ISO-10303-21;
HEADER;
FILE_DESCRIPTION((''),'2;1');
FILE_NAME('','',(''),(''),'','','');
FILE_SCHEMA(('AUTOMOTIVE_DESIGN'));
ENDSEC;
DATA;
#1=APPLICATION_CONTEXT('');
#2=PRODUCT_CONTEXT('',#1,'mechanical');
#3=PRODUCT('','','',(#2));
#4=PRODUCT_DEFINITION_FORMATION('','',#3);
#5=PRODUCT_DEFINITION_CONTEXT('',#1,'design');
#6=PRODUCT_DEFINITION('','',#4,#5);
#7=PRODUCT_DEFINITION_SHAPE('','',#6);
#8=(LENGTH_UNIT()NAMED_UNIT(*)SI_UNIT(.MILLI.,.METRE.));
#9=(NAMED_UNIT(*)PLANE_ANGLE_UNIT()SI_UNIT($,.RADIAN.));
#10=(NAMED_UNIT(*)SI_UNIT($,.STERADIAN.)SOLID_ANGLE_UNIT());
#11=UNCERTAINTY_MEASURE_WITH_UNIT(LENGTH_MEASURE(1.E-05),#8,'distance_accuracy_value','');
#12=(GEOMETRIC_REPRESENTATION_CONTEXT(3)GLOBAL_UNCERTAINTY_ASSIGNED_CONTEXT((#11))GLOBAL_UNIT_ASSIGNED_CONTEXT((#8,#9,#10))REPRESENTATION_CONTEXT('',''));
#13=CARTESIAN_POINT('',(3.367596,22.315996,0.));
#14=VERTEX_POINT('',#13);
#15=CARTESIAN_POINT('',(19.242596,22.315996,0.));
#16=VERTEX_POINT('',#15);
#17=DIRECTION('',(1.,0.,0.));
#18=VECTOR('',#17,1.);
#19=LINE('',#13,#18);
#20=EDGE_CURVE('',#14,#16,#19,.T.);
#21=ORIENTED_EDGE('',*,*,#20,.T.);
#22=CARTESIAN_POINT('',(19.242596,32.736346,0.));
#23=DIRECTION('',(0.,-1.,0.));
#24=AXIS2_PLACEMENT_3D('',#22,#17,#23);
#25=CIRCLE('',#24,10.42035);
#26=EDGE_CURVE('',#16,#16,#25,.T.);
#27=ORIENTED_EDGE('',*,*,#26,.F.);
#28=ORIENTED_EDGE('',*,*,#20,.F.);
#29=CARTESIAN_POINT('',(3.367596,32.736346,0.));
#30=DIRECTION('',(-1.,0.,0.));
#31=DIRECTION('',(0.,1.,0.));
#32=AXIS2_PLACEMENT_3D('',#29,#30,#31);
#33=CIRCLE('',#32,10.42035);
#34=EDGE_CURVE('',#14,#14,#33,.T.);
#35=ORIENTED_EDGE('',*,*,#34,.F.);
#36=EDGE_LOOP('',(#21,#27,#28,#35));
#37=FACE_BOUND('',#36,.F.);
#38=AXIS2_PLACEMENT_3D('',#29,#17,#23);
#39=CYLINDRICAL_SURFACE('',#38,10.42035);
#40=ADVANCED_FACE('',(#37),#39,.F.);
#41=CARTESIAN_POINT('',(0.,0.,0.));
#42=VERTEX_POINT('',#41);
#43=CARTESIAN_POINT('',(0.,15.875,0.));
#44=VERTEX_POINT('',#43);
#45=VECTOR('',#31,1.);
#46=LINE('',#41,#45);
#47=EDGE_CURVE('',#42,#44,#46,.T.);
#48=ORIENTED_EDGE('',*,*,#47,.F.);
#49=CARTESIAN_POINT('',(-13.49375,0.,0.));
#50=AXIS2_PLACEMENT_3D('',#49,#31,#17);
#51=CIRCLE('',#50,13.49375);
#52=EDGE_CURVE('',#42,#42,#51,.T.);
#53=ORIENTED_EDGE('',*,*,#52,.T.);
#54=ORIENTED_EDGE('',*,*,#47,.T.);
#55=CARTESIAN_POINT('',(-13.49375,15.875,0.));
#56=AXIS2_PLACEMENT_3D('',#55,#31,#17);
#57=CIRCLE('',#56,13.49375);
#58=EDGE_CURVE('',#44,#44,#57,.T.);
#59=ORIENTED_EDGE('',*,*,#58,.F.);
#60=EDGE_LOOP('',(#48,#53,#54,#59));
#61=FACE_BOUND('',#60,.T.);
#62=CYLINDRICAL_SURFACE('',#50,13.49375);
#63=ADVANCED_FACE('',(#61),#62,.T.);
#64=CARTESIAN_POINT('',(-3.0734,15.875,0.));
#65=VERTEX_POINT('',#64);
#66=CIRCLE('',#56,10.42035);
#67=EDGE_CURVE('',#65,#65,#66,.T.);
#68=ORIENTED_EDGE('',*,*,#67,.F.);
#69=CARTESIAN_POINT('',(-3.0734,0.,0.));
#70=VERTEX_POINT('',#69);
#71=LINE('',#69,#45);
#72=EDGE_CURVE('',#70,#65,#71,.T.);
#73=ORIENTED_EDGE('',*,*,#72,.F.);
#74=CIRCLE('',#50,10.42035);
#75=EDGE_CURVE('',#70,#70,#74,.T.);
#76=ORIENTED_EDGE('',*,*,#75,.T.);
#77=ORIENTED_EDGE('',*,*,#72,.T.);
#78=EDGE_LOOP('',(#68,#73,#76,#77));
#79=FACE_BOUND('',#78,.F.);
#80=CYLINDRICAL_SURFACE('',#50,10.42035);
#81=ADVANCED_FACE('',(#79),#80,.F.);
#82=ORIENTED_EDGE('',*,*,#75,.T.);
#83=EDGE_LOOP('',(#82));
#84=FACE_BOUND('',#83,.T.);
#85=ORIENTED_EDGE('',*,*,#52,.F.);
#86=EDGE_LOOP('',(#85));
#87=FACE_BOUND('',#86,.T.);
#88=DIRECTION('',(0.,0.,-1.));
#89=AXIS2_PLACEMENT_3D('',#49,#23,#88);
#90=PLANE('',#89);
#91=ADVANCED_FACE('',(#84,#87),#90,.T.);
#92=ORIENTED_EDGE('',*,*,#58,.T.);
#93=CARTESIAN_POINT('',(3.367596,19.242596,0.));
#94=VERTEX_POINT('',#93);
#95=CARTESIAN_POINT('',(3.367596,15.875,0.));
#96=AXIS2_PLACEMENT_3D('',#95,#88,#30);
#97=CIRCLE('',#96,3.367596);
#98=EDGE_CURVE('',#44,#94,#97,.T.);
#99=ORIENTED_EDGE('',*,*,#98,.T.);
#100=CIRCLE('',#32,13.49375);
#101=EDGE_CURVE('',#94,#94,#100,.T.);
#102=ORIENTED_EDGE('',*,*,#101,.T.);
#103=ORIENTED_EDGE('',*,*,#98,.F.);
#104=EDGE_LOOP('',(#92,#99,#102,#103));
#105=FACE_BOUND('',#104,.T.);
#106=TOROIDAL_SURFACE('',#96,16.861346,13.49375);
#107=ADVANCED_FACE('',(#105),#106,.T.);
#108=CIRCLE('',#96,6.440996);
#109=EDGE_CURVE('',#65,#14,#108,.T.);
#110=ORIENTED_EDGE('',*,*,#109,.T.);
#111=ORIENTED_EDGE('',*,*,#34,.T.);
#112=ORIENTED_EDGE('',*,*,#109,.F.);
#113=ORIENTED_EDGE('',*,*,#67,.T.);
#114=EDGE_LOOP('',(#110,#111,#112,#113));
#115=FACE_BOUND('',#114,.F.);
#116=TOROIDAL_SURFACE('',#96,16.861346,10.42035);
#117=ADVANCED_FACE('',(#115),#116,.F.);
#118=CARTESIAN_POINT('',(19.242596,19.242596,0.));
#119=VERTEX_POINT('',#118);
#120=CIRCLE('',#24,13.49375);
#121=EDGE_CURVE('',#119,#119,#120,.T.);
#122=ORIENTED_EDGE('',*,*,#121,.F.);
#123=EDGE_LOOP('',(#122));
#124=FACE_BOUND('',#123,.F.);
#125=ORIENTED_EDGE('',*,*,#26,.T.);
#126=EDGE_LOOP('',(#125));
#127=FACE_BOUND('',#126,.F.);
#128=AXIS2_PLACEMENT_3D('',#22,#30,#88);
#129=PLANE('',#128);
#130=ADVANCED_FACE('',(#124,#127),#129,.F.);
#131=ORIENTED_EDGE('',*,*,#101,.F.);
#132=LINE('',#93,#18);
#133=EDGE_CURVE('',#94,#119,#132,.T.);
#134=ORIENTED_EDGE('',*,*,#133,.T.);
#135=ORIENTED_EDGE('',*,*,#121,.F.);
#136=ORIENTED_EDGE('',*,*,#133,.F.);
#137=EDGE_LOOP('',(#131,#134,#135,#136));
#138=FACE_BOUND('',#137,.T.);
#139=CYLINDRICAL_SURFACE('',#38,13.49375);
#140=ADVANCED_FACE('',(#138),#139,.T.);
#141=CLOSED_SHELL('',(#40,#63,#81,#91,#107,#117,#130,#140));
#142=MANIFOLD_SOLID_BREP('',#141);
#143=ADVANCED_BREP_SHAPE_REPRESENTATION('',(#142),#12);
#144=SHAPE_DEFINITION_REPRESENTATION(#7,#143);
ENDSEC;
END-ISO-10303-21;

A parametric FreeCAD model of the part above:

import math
import FreeCAD as App
import Part
import Sketcher
from FreeCAD import Vector
Q = App.Units.Quantity


def faces_at(feature, points):
    """Names of the faces that lie closest to the given points."""
    faces = feature.Shape.Faces
    near = lambda p: min(range(len(faces)), key=lambda i: faces[i].distToShape(Part.Vertex(*p))[0])
    return sorted({f"Face{near(p) + 1}" for p in points})

doc = App.newDocument("Part")
body = doc.addObject("PartDesign::Body", "Body")

sketch1 = body.newObject("Sketcher::SketchObject", "Sketch")
sketch1.AttachmentSupport = (doc.getObject("XZ_Plane"), [""])
sketch1.MapMode = "FlatFace"
sketch1.addGeometry(Part.Circle(Vector(-13, 0, 0), Vector(0, 0, 1), 13), False)
sketch1.addConstraint(Sketcher.Constraint("PointOnObject", 0, 3, -1))
sketch1.addConstraint(Sketcher.Constraint("Diameter", 0, Q("1.0625 in")))
sketch1.addConstraint(Sketcher.Constraint("DistanceX", 0, 3, -1, 1, Q("0.53125 in")))

sketch2 = body.newObject("Sketcher::SketchObject", "Sketch001")
sketch2.AttachmentSupport = (doc.getObject("XY_Plane"), [""])
sketch2.MapMode = "FlatFace"
sketch2.addGeometry(Part.LineSegment(Vector(0, 0, 0), Vector(0, 15.9, 0)), False)
sketch2.addGeometry(Part.ArcOfCircle(Part.Circle(Vector(3.4, 15.9, 0), Vector(0, 0, 1), 3.4), math.radians(90), math.radians(180)), False)
sketch2.addGeometry(Part.LineSegment(Vector(3.4, 19.2, 0), Vector(19.2, 19.2, 0)), False)
sketch2.addConstraint(Sketcher.Constraint("Tangent", 0, 2, 1, 2))
sketch2.addConstraint(Sketcher.Constraint("Tangent", 1, 1, 2, 1))
sketch2.addConstraint(Sketcher.Constraint("Vertical", 0))
sketch2.addConstraint(Sketcher.Constraint("Horizontal", 2))
sketch2.addConstraint(Sketcher.Constraint("Coincident", 0, 1, -1, 1))
sketch2.addConstraint(Sketcher.Constraint("Equal", 2, 0))
sketch2.addConstraint(Sketcher.Constraint("DistanceX", 2, 1, 2, 2, Q("0.625 in")))
sketch2.addConstraint(Sketcher.Constraint("Radius", 1, Q("3.367596 mm")))
doc.recompute()

additivepipe = body.newObject("PartDesign::AdditivePipe", "AdditivePipe")
additivepipe.Profile = sketch1
additivepipe.Spine = (sketch2, ["Edge1", "Edge2", "Edge3"])
doc.recompute()

thickness = body.newObject("PartDesign::Thickness", "Thickness")
thickness.Base = (additivepipe, faces_at(additivepipe, [(-13.494, 0, 0), (19.243, 32.736, 0)]))
thickness.Value = Q("0.121 in")
thickness.Reversed = True
thickness.Join = "Arc"

doc.recompute()
